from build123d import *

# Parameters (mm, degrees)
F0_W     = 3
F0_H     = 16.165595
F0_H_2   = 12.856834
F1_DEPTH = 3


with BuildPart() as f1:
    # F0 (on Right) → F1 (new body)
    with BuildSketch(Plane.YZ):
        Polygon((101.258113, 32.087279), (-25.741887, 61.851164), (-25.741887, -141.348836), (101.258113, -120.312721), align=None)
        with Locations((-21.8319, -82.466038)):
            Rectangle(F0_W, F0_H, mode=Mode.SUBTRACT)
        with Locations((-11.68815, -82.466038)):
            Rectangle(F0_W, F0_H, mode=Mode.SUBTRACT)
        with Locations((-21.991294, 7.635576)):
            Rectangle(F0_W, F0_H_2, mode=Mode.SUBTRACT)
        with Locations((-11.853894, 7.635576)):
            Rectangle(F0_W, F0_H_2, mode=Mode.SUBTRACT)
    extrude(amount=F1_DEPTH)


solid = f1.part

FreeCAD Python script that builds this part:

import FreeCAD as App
import Part
import Sketcher
from FreeCAD import Vector
Q = App.Units.Quantity

doc = App.newDocument("Part")
params = doc.addObject("Spreadsheet::Sheet", "Params")
for row, (alias, value) in enumerate([
    ("sketch1_height", "8 in"),
    ("sketch1_height2", "6 in"),
    ("pad1_length", "3 mm"),
], start=1):
    params.set(f"A{row}", alias)
    params.set(f"B{row}", "=" + value)
    params.setAlias(f"B{row}", alias)

body = doc.addObject("PartDesign::Body", "Body")

# Sketch on YZ plane
sketch1 = body.newObject("Sketcher::SketchObject", "Sketch")
sketch1.AttachmentSupport = (doc.getObject("YZ_Plane"), [""])
sketch1.MapMode = "FlatFace"
sketch1.addGeometry([
    Part.LineSegment(Vector(101.3, 32.1, 0), Vector(-25.7, 61.9, 0)),  # 0
    Part.LineSegment(Vector(-25.7, 61.9, 0), Vector(-25.7, -141.3, 0)),  # 1
    Part.LineSegment(Vector(-25.7, -141.3, 0), Vector(101.3, -120.3, 0)),  # 2
    Part.LineSegment(Vector(101.3, -120.3, 0), Vector(101.3, 32.1, 0)),  # 3
    Part.LineSegment(Vector(-20.3, -90.5, 0), Vector(-23.3, -90.5, 0)),  # 4
    Part.LineSegment(Vector(-23.3, -90.5, 0), Vector(-23.3, -74.4, 0)),  # 5
    Part.LineSegment(Vector(-23.3, -74.4, 0), Vector(-20.3, -74.4, 0)),  # 6
    Part.LineSegment(Vector(-20.3, -74.4, 0), Vector(-20.3, -90.5, 0)),  # 7
    Part.LineSegment(Vector(-10.2, -90.5, 0), Vector(-13.2, -90.5, 0)),  # 8
    Part.LineSegment(Vector(-13.2, -90.5, 0), Vector(-13.2, -74.4, 0)),  # 9
    Part.LineSegment(Vector(-13.2, -74.4, 0), Vector(-10.2, -74.4, 0)),  # 10
    Part.LineSegment(Vector(-10.2, -74.4, 0), Vector(-10.2, -90.5, 0)),  # 11
    Part.LineSegment(Vector(-20.5, 1.2, 0), Vector(-23.5, 1.2, 0)),  # 12
    Part.LineSegment(Vector(-23.5, 1.2, 0), Vector(-23.5, 14.1, 0)),  # 13
    Part.LineSegment(Vector(-23.5, 14.1, 0), Vector(-20.5, 14.1, 0)),  # 14
    Part.LineSegment(Vector(-20.5, 14.1, 0), Vector(-20.5, 1.2, 0)),  # 15
    Part.LineSegment(Vector(-10.4, 1.2, 0), Vector(-13.4, 1.2, 0)),  # 16
    Part.LineSegment(Vector(-13.4, 1.2, 0), Vector(-13.4, 14.1, 0)),  # 17
    Part.LineSegment(Vector(-13.4, 14.1, 0), Vector(-10.4, 14.1, 0)),  # 18
    Part.LineSegment(Vector(-10.4, 14.1, 0), Vector(-10.4, 1.2, 0)),  # 19
], False)
sketch1.addConstraint([
    Sketcher.Constraint("Coincident", 0, 2, 1, 1),
    Sketcher.Constraint("Coincident", 1, 2, 2, 1),
    Sketcher.Constraint("Coincident", 2, 2, 3, 1),
    Sketcher.Constraint("Coincident", 3, 2, 0, 1),
    Sketcher.Constraint("Coincident", 4, 2, 5, 1),
    Sketcher.Constraint("Coincident", 5, 2, 6, 1),
    Sketcher.Constraint("Coincident", 6, 2, 7, 1),
    Sketcher.Constraint("Coincident", 7, 2, 4, 1),
    Sketcher.Constraint("Coincident", 8, 2, 9, 1),
    Sketcher.Constraint("Coincident", 9, 2, 10, 1),
    Sketcher.Constraint("Coincident", 10, 2, 11, 1),
    Sketcher.Constraint("Coincident", 11, 2, 8, 1),
    Sketcher.Constraint("Coincident", 12, 2, 13, 1),
    Sketcher.Constraint("Coincident", 13, 2, 14, 1),
    Sketcher.Constraint("Coincident", 14, 2, 15, 1),
    Sketcher.Constraint("Coincident", 15, 2, 12, 1),
    Sketcher.Constraint("Coincident", 16, 2, 17, 1),
    Sketcher.Constraint("Coincident", 17, 2, 18, 1),
    Sketcher.Constraint("Coincident", 18, 2, 19, 1),
    Sketcher.Constraint("Coincident", 19, 2, 16, 1),
    Sketcher.Constraint("Vertical", 1),
    Sketcher.Constraint("Vertical", 3),
    Sketcher.Constraint("Horizontal", 4),
    Sketcher.Constraint("Vertical", 5),
    Sketcher.Constraint("Horizontal", 6),
    Sketcher.Constraint("Vertical", 7),
    Sketcher.Constraint("Horizontal", 8),
    Sketcher.Constraint("Vertical", 9),
    Sketcher.Constraint("Horizontal", 10),
    Sketcher.Constraint("Vertical", 11),
    Sketcher.Constraint("Horizontal", 12),
    Sketcher.Constraint("Vertical", 13),
    Sketcher.Constraint("Horizontal", 14),
    Sketcher.Constraint("Vertical", 15),
    Sketcher.Constraint("Horizontal", 16),
    Sketcher.Constraint("Vertical", 17),
    Sketcher.Constraint("Horizontal", 18),
    Sketcher.Constraint("Vertical", 19),
    Sketcher.Constraint("Horizontal", 7, 2, 8, 2),
    Sketcher.Constraint("Horizontal", 6, 2, 9, 2),
    Sketcher.Constraint("Horizontal", 15, 2, 16, 2),
    Sketcher.Constraint("Horizontal", 14, 2, 17, 2),
    Sketcher.Constraint("Equal", 6, 8),
    Sketcher.Constraint("Equal", 10, 12),
    Sketcher.Constraint("Equal", 14, 16),
    Sketcher.Constraint("DistanceY", 1, 2, 1, 1, Q("8 in")),
    Sketcher.Constraint("DistanceY", 3, 1, 3, 2, Q("6 in")),
    Sketcher.Constraint("DistanceX", 1, 2, 2, 2, Q("5 in")),
    Sketcher.Constraint("DistanceY", 1, 2, 4, 2, Q("2 in")),
    Sketcher.Constraint("DistanceX", 7, 2, 8, 2, Q("0.28125 in")),
    Sketcher.Constraint("DistanceY", 5, 2, 12, 2, Q("2.976 in")),
    Sketcher.Constraint("DistanceX", 15, 2, 16, 2, Q("0.281 in")),
    Sketcher.Constraint("DistanceX", 4, 2, 4, 1, 3.0),
    Sketcher.Constraint("DistanceX", 4, 2, -1, 1, 23.3319),
    Sketcher.Constraint("Distance", 0, 130.441132),
    Sketcher.Constraint("DistanceY", 5, 1, 5, 2, 16.165595),
    Sketcher.Constraint("DistanceY", 13, 1, 13, 2, 12.856834),
    Sketcher.Constraint("DistanceY", 2, 2, -1, 1, 120.312721),
    Sketcher.Constraint("DistanceX", 0, 2, -1, 1, 25.741887),
    Sketcher.Constraint("DistanceX", 12, 2, -1, 1, 23.491294),
])
sketch1.setExpression("Constraints[45]", "Params.sketch1_height")
sketch1.setExpression("Constraints[46]", "Params.sketch1_height2")
pad1 = body.newObject("PartDesign::Pad", "Pad")
pad1.Profile = sketch1
pad1.setExpression("Length", "Params.pad1_length")

doc.recompute()
